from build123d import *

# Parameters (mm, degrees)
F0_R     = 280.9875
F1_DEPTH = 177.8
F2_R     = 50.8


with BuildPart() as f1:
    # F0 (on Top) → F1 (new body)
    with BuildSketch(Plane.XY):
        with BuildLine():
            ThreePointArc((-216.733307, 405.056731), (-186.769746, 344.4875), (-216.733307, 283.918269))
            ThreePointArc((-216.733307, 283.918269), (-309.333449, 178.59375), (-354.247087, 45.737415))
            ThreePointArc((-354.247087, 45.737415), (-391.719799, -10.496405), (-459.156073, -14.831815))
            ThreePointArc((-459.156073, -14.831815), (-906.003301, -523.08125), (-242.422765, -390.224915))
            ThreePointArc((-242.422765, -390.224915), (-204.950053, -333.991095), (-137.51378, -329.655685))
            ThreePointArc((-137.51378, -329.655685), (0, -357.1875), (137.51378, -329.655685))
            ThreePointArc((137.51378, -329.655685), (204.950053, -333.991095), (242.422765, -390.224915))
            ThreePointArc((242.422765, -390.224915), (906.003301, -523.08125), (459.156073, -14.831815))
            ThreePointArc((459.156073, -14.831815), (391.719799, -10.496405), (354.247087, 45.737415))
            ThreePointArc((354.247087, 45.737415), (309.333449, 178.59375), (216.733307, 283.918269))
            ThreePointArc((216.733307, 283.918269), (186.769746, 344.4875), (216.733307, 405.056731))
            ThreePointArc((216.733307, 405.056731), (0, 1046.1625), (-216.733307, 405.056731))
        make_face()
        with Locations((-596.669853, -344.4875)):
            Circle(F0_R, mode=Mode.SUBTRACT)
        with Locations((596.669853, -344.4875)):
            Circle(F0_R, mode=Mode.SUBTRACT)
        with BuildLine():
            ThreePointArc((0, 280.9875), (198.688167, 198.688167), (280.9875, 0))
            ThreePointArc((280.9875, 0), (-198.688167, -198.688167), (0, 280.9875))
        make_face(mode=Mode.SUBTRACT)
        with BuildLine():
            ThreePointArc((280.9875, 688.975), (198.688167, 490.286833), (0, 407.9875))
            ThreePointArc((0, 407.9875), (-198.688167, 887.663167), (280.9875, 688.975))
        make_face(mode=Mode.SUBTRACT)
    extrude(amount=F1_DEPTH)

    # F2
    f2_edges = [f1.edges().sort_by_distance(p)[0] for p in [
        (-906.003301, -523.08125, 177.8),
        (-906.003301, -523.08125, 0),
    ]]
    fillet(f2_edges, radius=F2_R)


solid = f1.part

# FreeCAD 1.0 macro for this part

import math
import FreeCAD as App
import Part
import Sketcher
from FreeCAD import Vector
Q = App.Units.Quantity


def edges_at(feature, points):
    """Names of the edges that pass closest to the given points."""
    edges = feature.Shape.Edges
    near = lambda p: min(range(len(edges)), key=lambda i: edges[i].distToShape(Part.Vertex(*p))[0])
    return sorted({f"Edge{near(p) + 1}" for p in points})

doc = App.newDocument("Part")
body = doc.addObject("PartDesign::Body", "Body")

# Sketch on XY plane
sketch1 = doc.addObject("Sketcher::SketchObject", "Sketch")
body.addObject(sketch1)
sketch1.AttachmentSupport = (doc.XY_Plane, [""])
sketch1.MapMode = "FlatFace"
sketch1.addGeometry(Part.ArcOfCircle(Part.Circle(Vector(-263, 344, 0), Vector(0, 0, 1), 76), math.radians(-53), math.radians(53)), False)
sketch1.addGeometry(Part.ArcOfCircle(Part.Circle(Vector(0, 0, 0), Vector(0, 0, 1), 357), math.radians(127), math.radians(173)), False)
sketch1.addGeometry(Part.ArcOfCircle(Part.Circle(Vector(-430, 55, 0), Vector(0, 0, 1), 76), math.radians(-113), math.radians(-7)), False)
sketch1.addGeometry(Part.ArcOfCircle(Part.Circle(Vector(-597, -344, 0), Vector(0, 0, 1), 357), math.radians(67), math.radians(353)), False)
sketch1.addGeometry(Part.ArcOfCircle(Part.Circle(Vector(-167, -400, 0), Vector(0, 0, 1), 76), math.radians(67), math.radians(173)), False)
sketch1.addGeometry(Part.ArcOfCircle(Part.Circle(Vector(0, 0, 0), Vector(0, 0, 1), 357), math.radians(-113), math.radians(-67)), False)
sketch1.addGeometry(Part.ArcOfCircle(Part.Circle(Vector(167, -400, 0), Vector(0, 0, 1), 76), math.radians(7), math.radians(113)), False)
sketch1.addGeometry(Part.ArcOfCircle(Part.Circle(Vector(597, -344, 0), Vector(0, 0, 1), 357), math.radians(-173), math.radians(113)), False)
sketch1.addGeometry(Part.ArcOfCircle(Part.Circle(Vector(430, 55, 0), Vector(0, 0, 1), 76), math.radians(-173), math.radians(-67)), False)
sketch1.addGeometry(Part.ArcOfCircle(Part.Circle(Vector(0, 0, 0), Vector(0, 0, 1), 357), math.radians(7), math.radians(53)), False)
sketch1.addGeometry(Part.ArcOfCircle(Part.Circle(Vector(263, 344, 0), Vector(0, 0, 1), 76), math.radians(127), math.radians(233)), False)
sketch1.addGeometry(Part.ArcOfCircle(Part.Circle(Vector(0, 689, 0), Vector(0, 0, 1), 357), math.radians(-53), math.radians(233)), False)
sketch1.addGeometry(Part.Circle(Vector(-597, -344, 0), Vector(0, 0, 1), 281), False)
sketch1.addGeometry(Part.ArcOfCircle(Part.Circle(Vector(0, 0, 0), Vector(0, 0, 1), 281), math.radians(90), math.radians(360)), False)
sketch1.addGeometry(Part.ArcOfCircle(Part.Circle(Vector(0, 0, 0), Vector(0, 0, 1), 281), math.radians(0), math.radians(90)), False)
sketch1.addGeometry(Part.Circle(Vector(597, -344, 0), Vector(0, 0, 1), 281), False)
sketch1.addGeometry(Part.ArcOfCircle(Part.Circle(Vector(0, 689, 0), Vector(0, 0, 1), 281), math.radians(0), math.radians(270)), False)
sketch1.addGeometry(Part.ArcOfCircle(Part.Circle(Vector(0, 689, 0), Vector(0, 0, 1), 281), math.radians(-90), math.radians(0)), False)
sketch1.addConstraint(Sketcher.Constraint("Tangent", 0, 1, 1, 1))
sketch1.addConstraint(Sketcher.Constraint("Tangent", 1, 2, 2, 2))
sketch1.addConstraint(Sketcher.Constraint("Tangent", 2, 1, 3, 1))
sketch1.addConstraint(Sketcher.Constraint("Tangent", 3, 2, 4, 2))
sketch1.addConstraint(Sketcher.Constraint("Tangent", 4, 1, 5, 1))
sketch1.addConstraint(Sketcher.Constraint("Tangent", 5, 2, 6, 2))
sketch1.addConstraint(Sketcher.Constraint("Tangent", 6, 1, 7, 1))
sketch1.addConstraint(Sketcher.Constraint("Tangent", 7, 2, 8, 2))
sketch1.addConstraint(Sketcher.Constraint("Tangent", 8, 1, 9, 1))
sketch1.addConstraint(Sketcher.Constraint("Tangent", 9, 2, 10, 2))
sketch1.addConstraint(Sketcher.Constraint("Tangent", 10, 1, 11, 1))
sketch1.addConstraint(Sketcher.Constraint("Tangent", 11, 2, 0, 2))
sketch1.addConstraint(Sketcher.Constraint("Tangent", 13, 1, 14, 2))
sketch1.addConstraint(Sketcher.Constraint("Coincident", 14, 1, 13, 2))
sketch1.addConstraint(Sketcher.Constraint("Tangent", 16, 1, 17, 2))
sketch1.addConstraint(Sketcher.Constraint("Coincident", 17, 1, 16, 2))
sketch1.addConstraint(Sketcher.Constraint("Coincident", 1, 3, -1, 1))
sketch1.addConstraint(Sketcher.Constraint("Coincident", 5, 3, -1, 1))
sketch1.addConstraint(Sketcher.Constraint("Coincident", 9, 3, -1, 1))
sketch1.addConstraint(Sketcher.Constraint("Coincident", 13, 3, -1, 1))
sketch1.addConstraint(Sketcher.Constraint("Coincident", 12, 3, 3, 3))
sketch1.addConstraint(Sketcher.Constraint("Coincident", 15, 3, 7, 3))
sketch1.addConstraint(Sketcher.Constraint("Coincident", 16, 3, 11, 3))
sketch1.addConstraint(Sketcher.Constraint("Equal", 0, 2))
sketch1.addConstraint(Sketcher.Constraint("Equal", 2, 4))
sketch1.addConstraint(Sketcher.Constraint("Equal", 4, 6))
sketch1.addConstraint(Sketcher.Constraint("Equal", 3, 7))
sketch1.addConstraint(Sketcher.Constraint("Equal", 6, 8))
sketch1.addConstraint(Sketcher.Constraint("Equal", 1, 9))
sketch1.addConstraint(Sketcher.Constraint("Equal", 8, 10))
sketch1.addConstraint(Sketcher.Constraint("Equal", 7, 11))
sketch1.addConstraint(Sketcher.Constraint("Equal", 12, 13))
sketch1.addConstraint(Sketcher.Constraint("Equal", 14, 15))
sketch1.addConstraint(Sketcher.Constraint("Equal", 15, 16))
sketch1.addConstraint(Sketcher.Constraint("Symmetric", 3, 3, 7, 3, -2))
sketch1.addConstraint(Sketcher.Constraint("PointOnObject", 11, 3, -2))
sketch1.addConstraint(Sketcher.Constraint("PointOnObject", 13, 1, -2))
sketch1.addConstraint(Sketcher.Constraint("PointOnObject", 14, 1, -1))
sketch1.addConstraint(Sketcher.Constraint("PointOnObject", 17, 1, -2))
sketch1.addConstraint(Sketcher.Constraint("Horizontal", 17, 3, 16, 1))
sketch1.addConstraint(Sketcher.Constraint("Radius", 0, Q("3 in")))
sketch1.addConstraint(Sketcher.Constraint("Diameter", 12, Q("22.125 in")))
sketch1.addConstraint(Sketcher.Constraint("Radius", 3, Q("14.0625 in")))
sketch1.addConstraint(Sketcher.Constraint("Radius", 5, Q("14.0625001 in")))
sketch1.addConstraint(Sketcher.Constraint("DistanceY", 13, 1, 17, 1, Q("5 in")))
sketch1.addConstraint(Sketcher.Constraint("DistanceY", 13, 1, 0, 3, Q("2.5 in")))
sketch1.addConstraint(Sketcher.Constraint("DistanceY", 3, 3, -1, 1, Q("13.5625 in")))
sketch1.addConstraint(Sketcher.Constraint("DistanceX", 1, 3, 6, 3, Q("6.5689 in")))
pad1 = doc.addObject("PartDesign::Pad", "Pad")
body.addObject(pad1)
pad1.Profile = sketch1
pad1.Length = Q("7 in")
doc.recompute()

fillet = doc.addObject("PartDesign::Fillet", "Fillet")
body.addObject(fillet)
fillet.Base = (pad1, edges_at(pad1, [(-906.003, -523.081, 177.8), (-906.003, -523.081, 0)]))
fillet.Radius = Q("2 in")

doc.recompute()
